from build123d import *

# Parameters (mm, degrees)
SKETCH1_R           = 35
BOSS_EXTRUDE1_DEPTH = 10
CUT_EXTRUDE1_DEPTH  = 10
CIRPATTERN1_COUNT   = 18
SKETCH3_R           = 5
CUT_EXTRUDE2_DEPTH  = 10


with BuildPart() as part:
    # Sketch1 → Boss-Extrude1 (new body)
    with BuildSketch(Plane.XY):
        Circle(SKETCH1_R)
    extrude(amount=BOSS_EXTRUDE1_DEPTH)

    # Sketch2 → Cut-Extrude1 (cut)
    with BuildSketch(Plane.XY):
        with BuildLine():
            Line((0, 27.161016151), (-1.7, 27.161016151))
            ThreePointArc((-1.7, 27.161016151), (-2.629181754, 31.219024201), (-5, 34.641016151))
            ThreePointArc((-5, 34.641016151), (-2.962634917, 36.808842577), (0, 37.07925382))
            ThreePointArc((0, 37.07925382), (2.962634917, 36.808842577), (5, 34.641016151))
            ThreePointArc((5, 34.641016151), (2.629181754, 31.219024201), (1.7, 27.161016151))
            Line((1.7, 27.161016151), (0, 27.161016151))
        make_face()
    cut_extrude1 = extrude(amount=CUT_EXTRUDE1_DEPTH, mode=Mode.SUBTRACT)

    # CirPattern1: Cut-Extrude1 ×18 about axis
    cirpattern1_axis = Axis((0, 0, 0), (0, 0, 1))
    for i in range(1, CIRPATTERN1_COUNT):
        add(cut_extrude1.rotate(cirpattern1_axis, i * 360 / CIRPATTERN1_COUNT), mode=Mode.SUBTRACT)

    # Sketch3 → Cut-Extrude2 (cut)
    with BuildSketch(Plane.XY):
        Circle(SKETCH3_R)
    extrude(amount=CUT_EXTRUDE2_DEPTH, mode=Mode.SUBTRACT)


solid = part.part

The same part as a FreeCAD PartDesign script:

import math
import FreeCAD as App
import Part
import Sketcher

V = App.Vector
Q = App.Units.Quantity

doc = App.newDocument("Part")
body = doc.addObject("PartDesign::Body", "Body")

sketch1 = body.newObject("Sketcher::SketchObject", "Sketch")
sketch1.AttachmentSupport = (doc.getObject("XY_Plane"), [""])
sketch1.MapMode = "FlatFace"
sketch1.addGeometry(Part.Circle(V(0, 0, 0), V(0, 0, 1), 35), False)
sketch1.addConstraint(Sketcher.Constraint("Coincident", 0, 3, -1, 1))
sketch1.addConstraint(Sketcher.Constraint("Diameter", 0, Q("70 mm")))
pad1 = body.newObject("PartDesign::Pad", "Pad")
pad1.Profile = sketch1
pad1.Length = 10

sketch2 = body.newObject("Sketcher::SketchObject", "Sketch001")
sketch2.AttachmentSupport = (doc.getObject("XY_Plane"), [""])
sketch2.MapMode = "FlatFace"
sketch2.addGeometry(Part.ArcOfCircle(Part.Circle(V(-12.7, 26.8, 0), V(0, 0, 1), 11), math.radians(2), math.radians(46)), False)
sketch2.addGeometry(Part.LineSegment(V(-1.7, 27.2, 0), V(1.7, 27.2, 0)), False)
sketch2.addGeometry(Part.ArcOfCircle(Part.Circle(V(12.7, 26.8, 0), V(0, 0, 1), 11), math.radians(134), math.radians(178)), False)
sketch2.addGeometry(Part.ArcOfCircle(Part.Circle(V(1.1, 33, 0), V(0, 0, 1), 4.2), math.radians(22), math.radians(106)), False)
sketch2.addGeometry(Part.ArcOfCircle(Part.Circle(V(-1.1, 33, 0), V(0, 0, 1), 4.2), math.radians(74), math.radians(158)), False)
sketch2.addConstraint(Sketcher.Constraint("Coincident", 0, 1, 1, 1))
sketch2.addConstraint(Sketcher.Constraint("Coincident", 1, 2, 2, 2))
sketch2.addConstraint(Sketcher.Constraint("Coincident", 2, 1, 3, 1))
sketch2.addConstraint(Sketcher.Constraint("Coincident", 3, 2, 4, 1))
sketch2.addConstraint(Sketcher.Constraint("Coincident", 4, 2, 0, 2))
sketch2.addConstraint(Sketcher.Constraint("Horizontal", 1))
sketch2.addConstraint(Sketcher.Constraint("Equal", 0, 2))
sketch2.addConstraint(Sketcher.Constraint("Equal", 3, 4))
sketch2.addConstraint(Sketcher.Constraint("Symmetric", 0, 3, 2, 3, -2))
sketch2.addConstraint(Sketcher.Constraint("Symmetric", 3, 3, 4, 3, -2))
sketch2.addConstraint(Sketcher.Constraint("DistanceX", 1, 1, 1, 2, Q("3.4 mm")))
sketch2.addConstraint(Sketcher.Constraint("DistanceX", -1, 1, 2, 1, Q("5 mm")))
sketch2.addConstraint(Sketcher.Constraint("DistanceY", 1, 2, 2, 1, Q("7.48 mm")))
sketch2.addConstraint(Sketcher.Constraint("Radius", 0, Q("10.998795 mm")))
sketch2.addConstraint(Sketcher.Constraint("Radius", 3, Q("4.192487 mm")))
sketch2.addConstraint(Sketcher.Constraint("DistanceY", -1, 1, 0, 3, Q("26.779468 mm")))
sketch2.addConstraint(Sketcher.Constraint("DistanceX", -1, 1, 3, 3, Q("1.125028 mm")))
pocket1 = body.newObject("PartDesign::Pocket", "Pocket")
pocket1.Profile = sketch2
pocket1.Length = 10
pocket1.Reversed = True
doc.recompute()

polarpattern = body.newObject("PartDesign::PolarPattern", "PolarPattern")
polarpattern.Originals = [pocket1]
polarpattern.Axis = (doc.getObject("Z_Axis"), [""])
polarpattern.Angle = 360
polarpattern.Occurrences = 18
body.Tip = polarpattern

sketch3 = body.newObject("Sketcher::SketchObject", "Sketch002")
sketch3.AttachmentSupport = (doc.getObject("XY_Plane"), [""])
sketch3.MapMode = "FlatFace"
sketch3.addGeometry(Part.Circle(V(0, 0, 0), V(0, 0, 1), 5), False)
sketch3.addConstraint(Sketcher.Constraint("Coincident", 0, 3, -1, 1))
sketch3.addConstraint(Sketcher.Constraint("Diameter", 0, Q("10 mm")))
pocket2 = body.newObject("PartDesign::Pocket", "Pocket001")
pocket2.Profile = sketch3
pocket2.Length = 10
pocket2.Reversed = True

doc.recompute()
